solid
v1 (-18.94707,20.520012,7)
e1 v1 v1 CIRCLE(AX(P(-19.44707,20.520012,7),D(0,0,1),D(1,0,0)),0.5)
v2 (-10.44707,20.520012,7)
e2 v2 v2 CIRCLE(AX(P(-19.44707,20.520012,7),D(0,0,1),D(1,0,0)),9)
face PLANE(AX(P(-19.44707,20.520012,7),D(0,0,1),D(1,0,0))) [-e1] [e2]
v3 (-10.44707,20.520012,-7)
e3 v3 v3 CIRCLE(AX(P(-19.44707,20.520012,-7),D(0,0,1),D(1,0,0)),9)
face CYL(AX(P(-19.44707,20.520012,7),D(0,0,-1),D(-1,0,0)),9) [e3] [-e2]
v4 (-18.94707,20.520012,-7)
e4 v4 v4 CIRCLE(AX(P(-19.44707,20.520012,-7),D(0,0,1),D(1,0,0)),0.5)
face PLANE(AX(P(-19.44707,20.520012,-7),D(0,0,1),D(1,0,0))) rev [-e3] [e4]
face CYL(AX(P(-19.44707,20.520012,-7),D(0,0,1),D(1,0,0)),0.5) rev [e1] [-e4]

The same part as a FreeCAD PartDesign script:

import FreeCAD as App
import Part
import Sketcher
from FreeCAD import Vector

doc = App.newDocument("Part")
body = doc.addObject("PartDesign::Body", "Body")

# Sketch on XY plane
sketch1 = doc.addObject("Sketcher::SketchObject", "Sketch")
body.addObject(sketch1)
sketch1.AttachmentSupport = (doc.XY_Plane, [""])
sketch1.MapMode = "FlatFace"
sketch1.addGeometry(Part.Circle(Vector(-19.44707, 20.520012, 0), Vector(0, 0, 1), 9), False)
sketch1.addConstraint([
    Sketcher.Constraint("Diameter", 0, 18.0),
    Sketcher.Constraint("DistanceX", 0, 3, -1, 1, 19.44707),
    Sketcher.Constraint("DistanceY", -1, 1, 0, 3, 20.520012),
])
pad1 = doc.addObject("PartDesign::Pad", "Pad")
body.addObject(pad1)
pad1.Profile = sketch1
pad1.Length = 14
pad1.Midplane = True

# Sketch on XY plane
sketch2 = doc.addObject("Sketcher::SketchObject", "Sketch001")
body.addObject(sketch2)
sketch2.AttachmentSupport = (doc.XY_Plane, [""])
sketch2.MapMode = "FlatFace"
sketch2.AttachmentOffset = App.Placement(Vector(0, 0, 7), App.Rotation())
sketch2.addGeometry(Part.Circle(Vector(-19.44707, 20.520012, 0), Vector(0, 0, 1), 0.5), False)
sketch2.addConstraint([
    Sketcher.Constraint("Diameter", 0, 1.0),
    Sketcher.Constraint("DistanceX", 0, 3, -1, 1, 19.44707),
    Sketcher.Constraint("DistanceY", -1, 1, 0, 3, 20.520012),
])
pocket1 = doc.addObject("PartDesign::Pocket", "Pocket")
body.addObject(pocket1)
pocket1.Profile = sketch2
pocket1.Length = 14

doc.recompute()
